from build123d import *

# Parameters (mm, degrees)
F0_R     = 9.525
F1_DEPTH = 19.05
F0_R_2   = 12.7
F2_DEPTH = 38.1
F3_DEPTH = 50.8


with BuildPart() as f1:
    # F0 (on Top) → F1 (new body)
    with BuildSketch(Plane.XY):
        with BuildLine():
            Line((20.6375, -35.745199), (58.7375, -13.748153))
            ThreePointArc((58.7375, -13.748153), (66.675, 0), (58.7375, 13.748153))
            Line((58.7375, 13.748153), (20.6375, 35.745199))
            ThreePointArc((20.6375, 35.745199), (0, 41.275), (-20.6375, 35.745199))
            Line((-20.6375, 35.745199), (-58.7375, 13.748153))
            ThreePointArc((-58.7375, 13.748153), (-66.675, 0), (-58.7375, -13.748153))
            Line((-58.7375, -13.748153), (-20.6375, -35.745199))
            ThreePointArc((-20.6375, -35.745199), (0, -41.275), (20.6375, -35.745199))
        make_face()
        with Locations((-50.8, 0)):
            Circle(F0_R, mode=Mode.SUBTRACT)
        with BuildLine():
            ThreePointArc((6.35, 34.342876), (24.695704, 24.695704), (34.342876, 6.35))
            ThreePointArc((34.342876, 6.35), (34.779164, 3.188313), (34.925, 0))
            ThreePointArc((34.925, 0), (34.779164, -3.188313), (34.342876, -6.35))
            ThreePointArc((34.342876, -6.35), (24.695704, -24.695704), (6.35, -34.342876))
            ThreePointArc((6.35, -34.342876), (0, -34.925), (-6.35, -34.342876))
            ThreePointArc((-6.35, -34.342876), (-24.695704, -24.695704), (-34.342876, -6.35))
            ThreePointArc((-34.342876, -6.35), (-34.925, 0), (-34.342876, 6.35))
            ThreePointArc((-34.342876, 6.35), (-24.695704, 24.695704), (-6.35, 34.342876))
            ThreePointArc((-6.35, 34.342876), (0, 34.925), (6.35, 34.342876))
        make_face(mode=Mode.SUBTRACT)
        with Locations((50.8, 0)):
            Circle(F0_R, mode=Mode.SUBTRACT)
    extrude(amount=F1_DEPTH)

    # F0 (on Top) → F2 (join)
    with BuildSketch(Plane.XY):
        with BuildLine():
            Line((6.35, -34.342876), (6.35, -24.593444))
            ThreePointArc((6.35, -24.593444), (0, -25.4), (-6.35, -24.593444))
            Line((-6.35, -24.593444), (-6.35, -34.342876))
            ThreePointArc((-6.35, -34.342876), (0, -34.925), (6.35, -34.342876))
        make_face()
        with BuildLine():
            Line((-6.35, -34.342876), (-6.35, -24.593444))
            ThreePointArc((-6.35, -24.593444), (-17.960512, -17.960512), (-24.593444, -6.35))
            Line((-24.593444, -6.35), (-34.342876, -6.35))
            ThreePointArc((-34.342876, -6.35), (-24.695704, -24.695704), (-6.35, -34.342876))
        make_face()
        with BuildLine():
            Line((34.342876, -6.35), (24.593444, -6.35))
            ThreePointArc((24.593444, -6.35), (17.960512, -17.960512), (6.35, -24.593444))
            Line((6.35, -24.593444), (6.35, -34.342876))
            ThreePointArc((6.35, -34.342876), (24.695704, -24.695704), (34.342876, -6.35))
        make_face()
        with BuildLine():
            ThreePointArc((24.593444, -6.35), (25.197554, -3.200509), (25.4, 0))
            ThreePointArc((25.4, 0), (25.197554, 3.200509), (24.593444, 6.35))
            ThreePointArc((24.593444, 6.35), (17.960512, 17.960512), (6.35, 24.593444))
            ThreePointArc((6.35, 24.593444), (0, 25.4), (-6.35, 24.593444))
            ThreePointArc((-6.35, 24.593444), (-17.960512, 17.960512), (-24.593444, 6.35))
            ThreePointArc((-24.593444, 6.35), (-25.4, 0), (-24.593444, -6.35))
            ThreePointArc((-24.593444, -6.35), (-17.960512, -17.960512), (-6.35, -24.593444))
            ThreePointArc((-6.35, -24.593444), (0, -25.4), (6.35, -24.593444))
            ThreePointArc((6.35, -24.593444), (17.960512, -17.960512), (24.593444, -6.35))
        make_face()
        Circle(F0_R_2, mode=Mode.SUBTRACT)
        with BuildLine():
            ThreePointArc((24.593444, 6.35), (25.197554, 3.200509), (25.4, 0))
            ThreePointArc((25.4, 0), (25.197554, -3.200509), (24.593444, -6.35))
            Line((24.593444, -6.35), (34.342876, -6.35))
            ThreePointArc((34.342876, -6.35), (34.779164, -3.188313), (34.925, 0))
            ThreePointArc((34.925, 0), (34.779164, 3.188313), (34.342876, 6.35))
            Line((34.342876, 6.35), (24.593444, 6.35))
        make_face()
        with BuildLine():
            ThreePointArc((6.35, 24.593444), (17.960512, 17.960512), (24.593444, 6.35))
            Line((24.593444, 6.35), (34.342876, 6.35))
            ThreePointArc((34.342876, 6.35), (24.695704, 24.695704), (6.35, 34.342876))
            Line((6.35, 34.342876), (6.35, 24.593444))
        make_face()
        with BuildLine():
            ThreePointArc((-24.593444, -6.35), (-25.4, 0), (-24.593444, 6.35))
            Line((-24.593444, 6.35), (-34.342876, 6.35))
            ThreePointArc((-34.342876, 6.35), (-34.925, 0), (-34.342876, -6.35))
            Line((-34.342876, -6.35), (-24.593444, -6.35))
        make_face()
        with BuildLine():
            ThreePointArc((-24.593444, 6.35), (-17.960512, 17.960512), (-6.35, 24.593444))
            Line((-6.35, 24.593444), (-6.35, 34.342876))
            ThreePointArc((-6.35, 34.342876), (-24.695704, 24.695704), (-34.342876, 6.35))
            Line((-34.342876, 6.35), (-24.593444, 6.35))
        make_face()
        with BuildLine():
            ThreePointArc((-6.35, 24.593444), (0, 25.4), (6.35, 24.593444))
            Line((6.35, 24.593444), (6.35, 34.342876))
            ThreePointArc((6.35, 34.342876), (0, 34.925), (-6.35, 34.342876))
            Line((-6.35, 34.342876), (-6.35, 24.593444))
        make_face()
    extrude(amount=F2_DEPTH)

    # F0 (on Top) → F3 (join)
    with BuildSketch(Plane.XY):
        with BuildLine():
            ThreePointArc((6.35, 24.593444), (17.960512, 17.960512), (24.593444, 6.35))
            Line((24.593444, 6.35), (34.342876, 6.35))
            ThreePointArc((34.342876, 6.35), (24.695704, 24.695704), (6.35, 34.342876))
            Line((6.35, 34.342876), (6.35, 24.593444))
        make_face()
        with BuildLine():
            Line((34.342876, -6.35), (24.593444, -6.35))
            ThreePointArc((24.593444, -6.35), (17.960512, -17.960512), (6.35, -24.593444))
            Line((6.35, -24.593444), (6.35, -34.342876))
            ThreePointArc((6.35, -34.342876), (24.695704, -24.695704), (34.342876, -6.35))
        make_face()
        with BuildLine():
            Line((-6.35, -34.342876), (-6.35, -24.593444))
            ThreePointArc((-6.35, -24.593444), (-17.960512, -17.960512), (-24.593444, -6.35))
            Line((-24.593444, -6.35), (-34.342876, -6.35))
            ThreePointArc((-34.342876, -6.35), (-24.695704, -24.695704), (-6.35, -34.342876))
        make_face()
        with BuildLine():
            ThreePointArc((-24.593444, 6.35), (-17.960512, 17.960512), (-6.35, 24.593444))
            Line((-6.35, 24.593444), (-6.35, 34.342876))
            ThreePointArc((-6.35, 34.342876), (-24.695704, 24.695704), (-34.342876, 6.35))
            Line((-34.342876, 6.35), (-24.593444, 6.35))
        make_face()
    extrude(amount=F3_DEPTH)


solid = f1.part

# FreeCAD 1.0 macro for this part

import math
import FreeCAD as App
import Part
import Sketcher
Q = App.Units.Quantity

doc = App.newDocument("Part")
params = doc.addObject("Spreadsheet::Sheet", "Params")
for row, (alias, value) in enumerate([
    ("sketch1_diameter", "0.75 in"),
    ("sketch1_diameter2", "0.75 in"),
    ("sketch1_radius", "0.625 in"),
    ("sketch1_radius2", "1.6250001 in"),
    ("sketch1_radius3", "0.625 in"),
    ("pad1_length", "0.75 in"),
    ("sketch2_diameter", "1 in"),
    ("sketch2_radius", "1.3750001 in"),
    ("pad2_length", "1.5 in"),
    ("sketch3_radius", "1 in"),
    ("sketch3_radius2", "1.3750001 in"),
    ("pad3_length", "2 in"),
], start=1):
    params.set(f"A{row}", alias)
    params.set(f"B{row}", "=" + value)
    params.setAlias(f"B{row}", alias)

body = doc.addObject("PartDesign::Body", "Body")

# Sketch on XY plane
sketch1 = body.newObject("Sketcher::SketchObject", "Sketch")
sketch1.AttachmentSupport = (doc.getObject("XY_Plane"), [""])
sketch1.MapMode = "FlatFace"
sketch1.addGeometry([
    Part.LineSegment(App.Vector(20.6375, -35.745199, 0), App.Vector(58.7375, -13.748153, 0)),  # 0
    Part.ArcOfCircle(Part.Circle(App.Vector(50.8, 0, 0), App.Vector(0, 0, 1), 15.875), math.radians(-60.000001), math.radians(60.000001)),  # 1
    Part.LineSegment(App.Vector(58.7375, 13.748153, 0), App.Vector(20.6375, 35.745199, 0)),  # 2
    Part.ArcOfCircle(Part.Circle(App.Vector(0, -0.000003, 0), App.Vector(0, 0, 1), 41.275003), math.radians(60.000002), math.radians(119.999998)),  # 3
    Part.LineSegment(App.Vector(-20.6375, 35.745199, 0), App.Vector(-58.7375, 13.748153, 0)),  # 4
    Part.ArcOfCircle(Part.Circle(App.Vector(-50.8, 0, 0), App.Vector(0, 0, 1), 15.875), math.radians(119.999999), math.radians(240.000001)),  # 5
    Part.LineSegment(App.Vector(-58.7375, -13.748153, 0), App.Vector(-20.6375, -35.745199, 0)),  # 6
    Part.ArcOfCircle(Part.Circle(App.Vector(0, 0.000003, 0), App.Vector(0, 0, 1), 41.275003), math.radians(-119.999998), math.radians(-60.000002)),  # 7
    Part.Circle(App.Vector(-50.8, 0, 0), App.Vector(0, 0, 1), 9.525),  # 8
    Part.Circle(App.Vector(50.8, 0, 0), App.Vector(0, 0, 1), 9.525),  # 9
    Part.ArcOfCircle(Part.Circle(App.Vector(0, -0.000006, 0), App.Vector(0, 0, 1), 34.925006), math.radians(79.52432), math.radians(100.47568)),  # 10
    Part.ArcOfCircle(Part.Circle(App.Vector(-0.000002, -0.000002, 0), App.Vector(0, 0, 1), 34.925003), math.radians(10.475685), math.radians(79.524315)),  # 11
    Part.ArcOfCircle(Part.Circle(App.Vector(-0.000137, -0.000012, 0), App.Vector(0, 0, 1), 34.925137), math.radians(0.00002), math.radians(10.47566)),  # 12
    Part.ArcOfCircle(Part.Circle(App.Vector(-0.000137, 0.000012, 0), App.Vector(0, 0, 1), 34.925137), math.radians(-10.47566), math.radians(-0.00002)),  # 13
    Part.ArcOfCircle(Part.Circle(App.Vector(-0.000002, 0.000002, 0), App.Vector(0, 0, 1), 34.925003), math.radians(-79.524315), math.radians(-10.475685)),  # 14
    Part.ArcOfCircle(Part.Circle(App.Vector(0, 0.000006, 0), App.Vector(0, 0, 1), 34.925006), math.radians(-100.47568), math.radians(-79.52432)),  # 15
    Part.ArcOfCircle(Part.Circle(App.Vector(0.000002, 0.000002, 0), App.Vector(0, 0, 1), 34.925003), math.radians(-169.524315), math.radians(-100.475685)),  # 16
    Part.ArcOfCircle(Part.Circle(App.Vector(0.000006, 0, 0), App.Vector(0, 0, 1), 34.925006), math.radians(169.52432), math.radians(190.47568)),  # 17
    Part.ArcOfCircle(Part.Circle(App.Vector(0.000002, -0.000002, 0), App.Vector(0, 0, 1), 34.925003), math.radians(100.475685), math.radians(169.524315)),  # 18
], False)
sketch1.addConstraint([
    Sketcher.Constraint("Coincident", 0, 2, 1, 1),
    Sketcher.Constraint("Coincident", 1, 2, 2, 1),
    Sketcher.Constraint("Coincident", 2, 2, 3, 1),
    Sketcher.Constraint("Coincident", 3, 2, 4, 1),
    Sketcher.Constraint("Coincident", 4, 2, 5, 1),
    Sketcher.Constraint("Coincident", 5, 2, 6, 1),
    Sketcher.Constraint("Coincident", 6, 2, 7, 1),
    Sketcher.Constraint("Coincident", 7, 2, 0, 1),
    Sketcher.Constraint("Coincident", 10, 1, 11, 2),
    Sketcher.Constraint("Coincident", 11, 1, 12, 2),
    Sketcher.Constraint("Coincident", 12, 1, 13, 2),
    Sketcher.Constraint("Coincident", 13, 1, 14, 2),
    Sketcher.Constraint("Coincident", 14, 1, 15, 2),
    Sketcher.Constraint("Coincident", 15, 1, 16, 2),
    Sketcher.Constraint("Coincident", 16, 1, 17, 2),
    Sketcher.Constraint("Coincident", 17, 1, 18, 2),
    Sketcher.Constraint("Coincident", 18, 1, 10, 2),
    Sketcher.Constraint("Coincident", 3, 3, -1, 1),
    Sketcher.Constraint("Coincident", 7, 3, -1, 1),
    Sketcher.Constraint("Coincident", 10, 3, -1, 1),
    Sketcher.Constraint("Coincident", 11, 3, -1, 1),
    Sketcher.Constraint("Coincident", 14, 3, -1, 1),
    Sketcher.Constraint("Coincident", 15, 3, -1, 1),
    Sketcher.Constraint("Coincident", 16, 3, -1, 1),
    Sketcher.Constraint("Coincident", 17, 3, -1, 1),
    Sketcher.Constraint("Coincident", 18, 3, -1, 1),
    Sketcher.Constraint("Coincident", 8, 3, 5, 3),
    Sketcher.Constraint("Coincident", 9, 3, 1, 3),
    Sketcher.Constraint("PointOnObject", 1, 3, -1),
    Sketcher.Constraint("PointOnObject", 5, 3, -1),
    Sketcher.Constraint("PointOnObject", 12, 1, -1),
    Sketcher.Constraint("Diameter", 8, Q("0.75 in")),
    Sketcher.Constraint("Diameter", 9, Q("0.75 in")),
    Sketcher.Constraint("DistanceX", -1, 1, 1, 3, Q("2 in")),
    Sketcher.Constraint("DistanceX", 5, 3, -1, 1, Q("2 in")),
    Sketcher.Constraint("Radius", 1, Q("0.625 in")),
    Sketcher.Constraint("Radius", 3, Q("1.6250001 in")),
    Sketcher.Constraint("Radius", 5, Q("0.625 in")),
    Sketcher.Constraint("Radius", 7, Q("1.6250001 in")),
    Sketcher.Constraint("Radius", 11, Q("1.3750001 in")),
    Sketcher.Constraint("DistanceX", 4, 2, 3, 2, Q("1.5 in")),
    Sketcher.Constraint("DistanceY", 13, 1, 11, 1, Q("0.5 in")),
    Sketcher.Constraint("DistanceX", 15, 1, 14, 1, Q("0.5 in")),
    Sketcher.Constraint("DistanceY", 16, 1, 17, 1, Q("0.5 in")),
    Sketcher.Constraint("DistanceX", 18, 1, 10, 1, Q("0.5 in")),
    Sketcher.Constraint("DistanceX", -1, 1, 10, 1, Q("0.25 in")),
    Sketcher.Constraint("DistanceY", -1, 1, 11, 1, Q("0.25 in")),
    Sketcher.Constraint("DistanceX", -1, 1, 14, 1, Q("0.25 in")),
    Sketcher.Constraint("DistanceY", 16, 1, -1, 1, Q("0.25 in")),
    Sketcher.Constraint("DistanceX", -1, 1, 0, 2, Q("2.3125 in")),
    Sketcher.Constraint("DistanceX", -1, 1, 1, 2, Q("2.3125 in")),
    Sketcher.Constraint("DistanceX", -1, 1, 2, 2, Q("0.8125 in")),
    Sketcher.Constraint("DistanceX", 3, 2, -1, 1, Q("0.8125 in")),
    Sketcher.Constraint("DistanceX", 5, 2, -1, 1, Q("2.3125 in")),
    Sketcher.Constraint("DistanceX", 6, 2, -1, 1, Q("0.8125 in")),
    Sketcher.Constraint("DistanceX", -1, 1, 7, 2, Q("0.8125 in")),
    Sketcher.Constraint("DistanceX", -1, 1, 12, 1, Q("1.375 in")),
    Sketcher.Constraint("Radius", 12, Q("34.925137 mm")),
    Sketcher.Constraint("Radius", 13, Q("34.925137 mm")),
])
sketch1.setExpression("Constraints[31]", "Params.sketch1_diameter")
sketch1.setExpression("Constraints[32]", "Params.sketch1_diameter2")
sketch1.setExpression("Constraints[35]", "Params.sketch1_radius")
sketch1.setExpression("Constraints[36]", "Params.sketch1_radius2")
sketch1.setExpression("Constraints[37]", "Params.sketch1_radius3")
pad1 = body.newObject("PartDesign::Pad", "Pad")
pad1.Profile = sketch1
pad1.setExpression("Length", "Params.pad1_length")

# Sketch on XY plane
sketch2 = body.newObject("Sketcher::SketchObject", "Sketch001")
sketch2.AttachmentSupport = (doc.getObject("XY_Plane"), [""])
sketch2.MapMode = "FlatFace"
sketch2.addGeometry([
    Part.ArcOfCircle(Part.Circle(App.Vector(0.000002, 0.000002, 0), App.Vector(0, 0, 1), 34.925003), math.radians(-169.524315), math.radians(-100.475685)),  # 0
    Part.ArcOfCircle(Part.Circle(App.Vector(0, 0.000006, 0), App.Vector(0, 0, 1), 34.925006), math.radians(-100.47568), math.radians(-79.52432)),  # 1
    Part.ArcOfCircle(Part.Circle(App.Vector(-0.000002, 0.000002, 0), App.Vector(0, 0, 1), 34.925003), math.radians(-79.524315), math.radians(-10.475685)),  # 2
    Part.ArcOfCircle(Part.Circle(App.Vector(-0.000137, 0.000012, 0), App.Vector(0, 0, 1), 34.925137), math.radians(-10.47566), math.radians(-0.00002)),  # 3
    Part.ArcOfCircle(Part.Circle(App.Vector(-0.000137, -0.000012, 0), App.Vector(0, 0, 1), 34.925137), math.radians(0.00002), math.radians(10.47566)),  # 4
    Part.ArcOfCircle(Part.Circle(App.Vector(-0.000002, -0.000002, 0), App.Vector(0, 0, 1), 34.925003), math.radians(10.475685), math.radians(79.524315)),  # 5
    Part.ArcOfCircle(Part.Circle(App.Vector(0, -0.000006, 0), App.Vector(0, 0, 1), 34.925006), math.radians(79.52432), math.radians(100.47568)),  # 6
    Part.ArcOfCircle(Part.Circle(App.Vector(0.000002, -0.000002, 0), App.Vector(0, 0, 1), 34.925003), math.radians(100.475685), math.radians(169.524315)),  # 7
    Part.ArcOfCircle(Part.Circle(App.Vector(0.000006, 0, 0), App.Vector(0, 0, 1), 34.925006), math.radians(169.52432), math.radians(190.47568)),  # 8
    Part.Circle(App.Vector(0, 0, 0), App.Vector(0, 0, 1), 12.7),  # 9
], False)
sketch2.addConstraint([
    Sketcher.Constraint("Coincident", 0, 2, 1, 1),
    Sketcher.Constraint("Coincident", 1, 2, 2, 1),
    Sketcher.Constraint("Coincident", 2, 2, 3, 1),
    Sketcher.Constraint("Coincident", 3, 2, 4, 1),
    Sketcher.Constraint("Coincident", 4, 2, 5, 1),
    Sketcher.Constraint("Coincident", 5, 2, 6, 1),
    Sketcher.Constraint("Coincident", 6, 2, 7, 1),
    Sketcher.Constraint("Coincident", 7, 2, 8, 1),
    Sketcher.Constraint("Coincident", 8, 2, 0, 1),
    Sketcher.Constraint("Coincident", 0, 3, -1, 1),
    Sketcher.Constraint("Coincident", 1, 3, -1, 1),
    Sketcher.Constraint("Coincident", 2, 3, -1, 1),
    Sketcher.Constraint("Coincident", 5, 3, -1, 1),
    Sketcher.Constraint("Coincident", 6, 3, -1, 1),
    Sketcher.Constraint("Coincident", 7, 3, -1, 1),
    Sketcher.Constraint("Coincident", 8, 3, -1, 1),
    Sketcher.Constraint("Coincident", 9, 3, -1, 1),
    Sketcher.Constraint("PointOnObject", 3, 2, -1),
    Sketcher.Constraint("Diameter", 9, Q("1 in")),
    Sketcher.Constraint("Radius", 0, Q("1.3750001 in")),
    Sketcher.Constraint("DistanceX", 0, 2, 1, 2, Q("0.5 in")),
    Sketcher.Constraint("DistanceY", 2, 2, 4, 2, Q("0.5 in")),
    Sketcher.Constraint("DistanceX", 6, 2, 5, 2, Q("0.5 in")),
    Sketcher.Constraint("DistanceY", 8, 2, 7, 2, Q("0.5 in")),
    Sketcher.Constraint("DistanceX", 0, 2, -1, 1, Q("0.25 in")),
    Sketcher.Constraint("DistanceY", 2, 2, -1, 1, Q("0.25 in")),
    Sketcher.Constraint("DistanceX", -1, 1, 5, 2, Q("0.25 in")),
    Sketcher.Constraint("DistanceY", -1, 1, 7, 2, Q("0.25 in")),
    Sketcher.Constraint("DistanceX", -1, 1, 3, 2, Q("1.375 in")),
    Sketcher.Constraint("Radius", 3, Q("34.925137 mm")),
    Sketcher.Constraint("Radius", 4, Q("34.925137 mm")),
])
sketch2.setExpression("Constraints[18]", "Params.sketch2_diameter")
sketch2.setExpression("Constraints[19]", "Params.sketch2_radius")
pad2 = body.newObject("PartDesign::Pad", "Pad001")
pad2.Profile = sketch2
pad2.setExpression("Length", "Params.pad2_length")

# Sketch on XY plane
sketch3 = body.newObject("Sketcher::SketchObject", "Sketch002")
sketch3.AttachmentSupport = (doc.getObject("XY_Plane"), [""])
sketch3.MapMode = "FlatFace"
sketch3.addGeometry([
    Part.ArcOfCircle(Part.Circle(App.Vector(-0.000001, -0.000001, 0), App.Vector(0, 0, 1), 25.4), math.radians(14.477513), math.radians(75.522487)),  # 0
    Part.LineSegment(App.Vector(24.593444, 6.35, 0), App.Vector(34.342876, 6.35, 0)),  # 1
    Part.ArcOfCircle(Part.Circle(App.Vector(-0.000002, -0.000002, 0), App.Vector(0, 0, 1), 34.925003), math.radians(10.475685), math.radians(79.524315)),  # 2
    Part.LineSegment(App.Vector(6.35, 34.342876, 0), App.Vector(6.35, 24.593444, 0)),  # 3
    Part.LineSegment(App.Vector(34.342876, -6.35, 0), App.Vector(24.593444, -6.35, 0)),  # 4
    Part.ArcOfCircle(Part.Circle(App.Vector(-0.000001, 0.000001, 0), App.Vector(0, 0, 1), 25.4), math.radians(-75.522487), math.radians(-14.477513)),  # 5
    Part.LineSegment(App.Vector(6.35, -24.593444, 0), App.Vector(6.35, -34.342876, 0)),  # 6
    Part.ArcOfCircle(Part.Circle(App.Vector(-0.000002, 0.000002, 0), App.Vector(0, 0, 1), 34.925003), math.radians(-79.524315), math.radians(-10.475685)),  # 7
    Part.LineSegment(App.Vector(-6.35, -34.342876, 0), App.Vector(-6.35, -24.593444, 0)),  # 8
    Part.ArcOfCircle(Part.Circle(App.Vector(0.000001, 0.000001, 0), App.Vector(0, 0, 1), 25.4), math.radians(-165.522487), math.radians(-104.477513)),  # 9
    Part.LineSegment(App.Vector(-24.593444, -6.35, 0), App.Vector(-34.342876, -6.35, 0)),  # 10
    Part.ArcOfCircle(Part.Circle(App.Vector(0.000002, 0.000002, 0), App.Vector(0, 0, 1), 34.925003), math.radians(-169.524315), math.radians(-100.475685)),  # 11
    Part.ArcOfCircle(Part.Circle(App.Vector(0.000001, -0.000001, 0), App.Vector(0, 0, 1), 25.4), math.radians(104.477513), math.radians(165.522487)),  # 12
    Part.LineSegment(App.Vector(-6.35, 24.593444, 0), App.Vector(-6.35, 34.342876, 0)),  # 13
    Part.ArcOfCircle(Part.Circle(App.Vector(0.000002, -0.000002, 0), App.Vector(0, 0, 1), 34.925003), math.radians(100.475685), math.radians(169.524315)),  # 14
    Part.LineSegment(App.Vector(-34.342876, 6.35, 0), App.Vector(-24.593444, 6.35, 0)),  # 15
], False)
sketch3.addConstraint([
    Sketcher.Constraint("Coincident", 0, 1, 1, 1),
    Sketcher.Constraint("Coincident", 1, 2, 2, 1),
    Sketcher.Constraint("Coincident", 2, 2, 3, 1),
    Sketcher.Constraint("Coincident", 3, 2, 0, 2),
    Sketcher.Constraint("Coincident", 4, 2, 5, 2),
    Sketcher.Constraint("Coincident", 5, 1, 6, 1),
    Sketcher.Constraint("Coincident", 6, 2, 7, 1),
    Sketcher.Constraint("Coincident", 7, 2, 4, 1),
    Sketcher.Constraint("Coincident", 8, 2, 9, 2),
    Sketcher.Constraint("Coincident", 9, 1, 10, 1),
    Sketcher.Constraint("Coincident", 10, 2, 11, 1),
    Sketcher.Constraint("Coincident", 11, 2, 8, 1),
    Sketcher.Constraint("Coincident", 12, 1, 13, 1),
    Sketcher.Constraint("Coincident", 13, 2, 14, 1),
    Sketcher.Constraint("Coincident", 14, 2, 15, 1),
    Sketcher.Constraint("Coincident", 15, 2, 12, 2),
    Sketcher.Constraint("Horizontal", 1),
    Sketcher.Constraint("Vertical", 3),
    Sketcher.Constraint("Horizontal", 4),
    Sketcher.Constraint("Vertical", 6),
    Sketcher.Constraint("Vertical", 8),
    Sketcher.Constraint("Horizontal", 10),
    Sketcher.Constraint("Vertical", 13),
    Sketcher.Constraint("Horizontal", 15),
    Sketcher.Constraint("Coincident", 0, 3, -1, 1),
    Sketcher.Constraint("Coincident", 2, 3, -1, 1),
    Sketcher.Constraint("Coincident", 5, 3, -1, 1),
    Sketcher.Constraint("Coincident", 7, 3, -1, 1),
    Sketcher.Constraint("Coincident", 9, 3, -1, 1),
    Sketcher.Constraint("Coincident", 11, 3, -1, 1),
    Sketcher.Constraint("Coincident", 12, 3, -1, 1),
    Sketcher.Constraint("Coincident", 14, 3, -1, 1),
    Sketcher.Constraint("Equal", 0, 5),
    Sketcher.Constraint("Equal", 2, 7),
    Sketcher.Constraint("Equal", 5, 9),
    Sketcher.Constraint("Equal", 7, 11),
    Sketcher.Constraint("Equal", 9, 12),
    Sketcher.Constraint("Equal", 11, 14),
    Sketcher.Constraint("Horizontal", 5, 1, 8, 2),
    Sketcher.Constraint("Horizontal", 7, 2, 9, 1),
    Sketcher.Constraint("Horizontal", 3, 2, 12, 1),
    Sketcher.Constraint("Horizontal", 1, 2, 14, 2),
    Sketcher.Constraint("Vertical", 0, 1, 4, 2),
    Sketcher.Constraint("Vertical", 3, 2, 5, 1),
    Sketcher.Constraint("Equal", 15, 3),
    Sketcher.Constraint("Radius", 0, Q("1 in")),
    Sketcher.Constraint("Radius", 2, Q("1.3750001 in")),
    Sketcher.Constraint("DistanceY", 4, 2, 0, 1, Q("0.5 in")),
])
sketch3.setExpression("Constraints[45]", "Params.sketch3_radius")
sketch3.setExpression("Constraints[46]", "Params.sketch3_radius2")
pad3 = body.newObject("PartDesign::Pad", "Pad002")
pad3.Profile = sketch3
pad3.setExpression("Length", "Params.pad3_length")

doc.recompute()
